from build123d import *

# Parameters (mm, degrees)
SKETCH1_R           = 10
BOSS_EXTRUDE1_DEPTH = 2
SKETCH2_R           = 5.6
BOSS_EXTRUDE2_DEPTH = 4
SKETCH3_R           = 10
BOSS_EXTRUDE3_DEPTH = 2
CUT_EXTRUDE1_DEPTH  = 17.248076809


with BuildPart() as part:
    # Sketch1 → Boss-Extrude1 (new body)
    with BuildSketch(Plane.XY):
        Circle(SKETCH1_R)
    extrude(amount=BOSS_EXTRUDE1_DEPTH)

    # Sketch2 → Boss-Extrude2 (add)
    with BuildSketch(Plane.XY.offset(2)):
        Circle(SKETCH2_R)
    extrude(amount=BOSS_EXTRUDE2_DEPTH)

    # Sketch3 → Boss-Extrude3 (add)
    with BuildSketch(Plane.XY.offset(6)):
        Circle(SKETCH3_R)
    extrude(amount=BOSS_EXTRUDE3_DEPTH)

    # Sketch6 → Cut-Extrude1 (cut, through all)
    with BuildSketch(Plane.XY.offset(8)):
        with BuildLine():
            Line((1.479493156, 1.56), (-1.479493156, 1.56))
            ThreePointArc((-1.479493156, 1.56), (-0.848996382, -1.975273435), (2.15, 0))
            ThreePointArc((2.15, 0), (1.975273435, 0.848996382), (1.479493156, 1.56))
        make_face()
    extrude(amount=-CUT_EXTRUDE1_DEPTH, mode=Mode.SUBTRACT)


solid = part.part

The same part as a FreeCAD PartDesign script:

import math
import FreeCAD as App
import Part
import Sketcher

doc = App.newDocument("Part")
body = doc.addObject("PartDesign::Body", "Body")

# Sketch on XY plane
sketch1 = doc.addObject("Sketcher::SketchObject", "Sketch")
body.addObject(sketch1)
sketch1.AttachmentSupport = (doc.XY_Plane, [""])
sketch1.MapMode = "FlatFace"
sketch1.addGeometry(Part.Circle(App.Vector(0, 0, 0), App.Vector(0, 0, 1), 10), False)
sketch1.addConstraint(Sketcher.Constraint("Coincident", 0, 3, -1, 1))
sketch1.addConstraint(Sketcher.Constraint("Diameter", 0, 20.0))
pad1 = doc.addObject("PartDesign::Pad", "Pad")
body.addObject(pad1)
pad1.Profile = sketch1
pad1.Length = 2

# Sketch on XY plane
sketch2 = doc.addObject("Sketcher::SketchObject", "Sketch001")
body.addObject(sketch2)
sketch2.AttachmentSupport = (doc.XY_Plane, [""])
sketch2.MapMode = "FlatFace"
sketch2.AttachmentOffset = App.Placement(App.Vector(0, 0, 2), App.Rotation())
sketch2.addGeometry(Part.Circle(App.Vector(0, 0, 0), App.Vector(0, 0, 1), 6), False)
sketch2.addConstraint(Sketcher.Constraint("Coincident", 0, 3, -1, 1))
sketch2.addConstraint(Sketcher.Constraint("Diameter", 0, 11.2))
pad2 = doc.addObject("PartDesign::Pad", "Pad001")
body.addObject(pad2)
pad2.Profile = sketch2
pad2.Length = 4

# Sketch on XY plane
sketch3 = doc.addObject("Sketcher::SketchObject", "Sketch002")
body.addObject(sketch3)
sketch3.AttachmentSupport = (doc.XY_Plane, [""])
sketch3.MapMode = "FlatFace"
sketch3.AttachmentOffset = App.Placement(App.Vector(0, 0, 6), App.Rotation())
sketch3.addGeometry(Part.Circle(App.Vector(0, 0, 0), App.Vector(0, 0, 1), 10), False)
sketch3.addConstraint(Sketcher.Constraint("Coincident", 0, 3, -1, 1))
sketch3.addConstraint(Sketcher.Constraint("Diameter", 0, 20.0))
pad3 = doc.addObject("PartDesign::Pad", "Pad002")
body.addObject(pad3)
pad3.Profile = sketch3
pad3.Length = 2

# Sketch on XY plane
sketch4 = doc.addObject("Sketcher::SketchObject", "Sketch003")
body.addObject(sketch4)
sketch4.AttachmentSupport = (doc.XY_Plane, [""])
sketch4.MapMode = "FlatFace"
sketch4.AttachmentOffset = App.Placement(App.Vector(0, 0, 8), App.Rotation())
sketch4.addGeometry(Part.LineSegment(App.Vector(1.5, 1.6, 0), App.Vector(-1.5, 1.6, 0)), False)
sketch4.addGeometry(Part.ArcOfCircle(Part.Circle(App.Vector(0, 0, 0), App.Vector(0, 0, 1), 2.1), math.radians(133), math.radians(360)), False)
sketch4.addGeometry(Part.ArcOfCircle(Part.Circle(App.Vector(0, 0, 0), App.Vector(0, 0, 1), 2.1), math.radians(0), math.radians(47)), False)
sketch4.addConstraint(Sketcher.Constraint("Coincident", 0, 2, 1, 1))
sketch4.addConstraint(Sketcher.Constraint("Tangent", 1, 2, 2, 1))
sketch4.addConstraint(Sketcher.Constraint("Coincident", 2, 2, 0, 1))
sketch4.addConstraint(Sketcher.Constraint("Horizontal", 0))
sketch4.addConstraint(Sketcher.Constraint("Coincident", 1, 3, -1, 1))
sketch4.addConstraint(Sketcher.Constraint("Equal", 1, 2))
sketch4.addConstraint(Sketcher.Constraint("PointOnObject", 1, 2, -1))
sketch4.addConstraint(Sketcher.Constraint("Radius", 1, 2.15))
sketch4.addConstraint(Sketcher.Constraint("DistanceY", -1, 1, 0, 2, 1.56))
pocket1 = doc.addObject("PartDesign::Pocket", "Pocket")
body.addObject(pocket1)
pocket1.Profile = sketch4
pocket1.Type = "ThroughAll"

doc.recompute()
